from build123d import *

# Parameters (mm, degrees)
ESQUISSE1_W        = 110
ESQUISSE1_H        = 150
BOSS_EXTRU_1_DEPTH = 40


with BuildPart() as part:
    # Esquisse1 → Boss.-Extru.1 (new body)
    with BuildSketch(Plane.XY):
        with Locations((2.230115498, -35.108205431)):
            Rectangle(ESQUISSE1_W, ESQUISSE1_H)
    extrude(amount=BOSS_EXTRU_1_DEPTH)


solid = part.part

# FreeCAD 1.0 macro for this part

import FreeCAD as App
import Part
import Sketcher
Q = App.Units.Quantity

doc = App.newDocument("Part")
body = doc.addObject("PartDesign::Body", "Body")

# Sketch on XY plane
sketch1 = body.newObject("Sketcher::SketchObject", "Sketch")
sketch1.AttachmentSupport = (doc.getObject("XY_Plane"), [""])
sketch1.MapMode = "FlatFace"
sketch1.addGeometry([
    Part.LineSegment(App.Vector(-53, 40, 0), App.Vector(-53, -110, 0)),
    Part.LineSegment(App.Vector(-53, -110, 0), App.Vector(57, -110, 0)),
    Part.LineSegment(App.Vector(57, -110, 0), App.Vector(57, 40, 0)),
    Part.LineSegment(App.Vector(57, 40, 0), App.Vector(-53, 40, 0)),
], False)
sketch1.addConstraint([
    Sketcher.Constraint("Coincident", 0, 2, 1, 1),
    Sketcher.Constraint("Coincident", 1, 2, 2, 1),
    Sketcher.Constraint("Coincident", 2, 2, 3, 1),
    Sketcher.Constraint("Coincident", 3, 2, 0, 1),
    Sketcher.Constraint("Vertical", 0),
    Sketcher.Constraint("Horizontal", 1),
    Sketcher.Constraint("Vertical", 2),
    Sketcher.Constraint("Horizontal", 3),
    Sketcher.Constraint("DistanceX", 1, 1, 1, 2, Q("110 mm")),
    Sketcher.Constraint("DistanceY", 0, 2, 0, 1, Q("150 mm")),
    Sketcher.Constraint("DistanceX", 0, 2, -1, 1, Q("52.769885 mm")),
    Sketcher.Constraint("DistanceY", 0, 2, -1, 1, Q("110.108205 mm")),
])
pad1 = body.newObject("PartDesign::Pad", "Pad")
pad1.Profile = sketch1
pad1.Length = 40

doc.recompute()
